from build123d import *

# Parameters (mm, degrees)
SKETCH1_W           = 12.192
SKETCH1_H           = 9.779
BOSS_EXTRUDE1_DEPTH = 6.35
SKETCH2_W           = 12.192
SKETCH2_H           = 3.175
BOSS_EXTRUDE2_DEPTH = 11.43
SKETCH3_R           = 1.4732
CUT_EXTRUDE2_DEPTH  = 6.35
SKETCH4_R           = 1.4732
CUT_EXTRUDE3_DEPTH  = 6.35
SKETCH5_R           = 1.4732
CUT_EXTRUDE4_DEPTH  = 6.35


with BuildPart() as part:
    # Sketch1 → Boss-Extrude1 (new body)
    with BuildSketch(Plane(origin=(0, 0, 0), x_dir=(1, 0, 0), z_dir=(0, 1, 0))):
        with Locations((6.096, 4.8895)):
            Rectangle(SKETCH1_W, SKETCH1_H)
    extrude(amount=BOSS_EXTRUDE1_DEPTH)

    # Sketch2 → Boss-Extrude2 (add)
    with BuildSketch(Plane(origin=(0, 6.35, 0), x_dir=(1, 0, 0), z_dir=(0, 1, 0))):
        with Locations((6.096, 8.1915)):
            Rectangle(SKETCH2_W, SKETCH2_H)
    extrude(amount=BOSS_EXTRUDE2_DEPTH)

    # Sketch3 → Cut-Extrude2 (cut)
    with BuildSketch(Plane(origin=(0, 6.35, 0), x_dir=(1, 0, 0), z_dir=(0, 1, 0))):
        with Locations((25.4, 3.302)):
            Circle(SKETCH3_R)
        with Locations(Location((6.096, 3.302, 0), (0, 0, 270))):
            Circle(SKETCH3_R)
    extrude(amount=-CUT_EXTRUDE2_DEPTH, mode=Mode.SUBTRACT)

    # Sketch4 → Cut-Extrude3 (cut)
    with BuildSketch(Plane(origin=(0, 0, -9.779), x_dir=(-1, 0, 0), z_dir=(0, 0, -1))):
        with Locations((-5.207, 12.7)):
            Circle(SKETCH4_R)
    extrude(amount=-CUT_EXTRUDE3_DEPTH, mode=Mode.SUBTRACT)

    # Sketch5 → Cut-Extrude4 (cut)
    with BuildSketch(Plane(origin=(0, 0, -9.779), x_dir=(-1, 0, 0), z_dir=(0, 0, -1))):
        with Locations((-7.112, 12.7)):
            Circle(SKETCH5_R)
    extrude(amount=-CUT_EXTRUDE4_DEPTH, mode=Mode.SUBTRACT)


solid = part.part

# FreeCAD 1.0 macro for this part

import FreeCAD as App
import Part
import Sketcher

V = App.Vector
Q = App.Units.Quantity


def add_polygon(sketch, points):
    """Adds a closed chain of lines whose ends are joined by coincident constraints."""
    first, n = sketch.GeometryCount, len(points)
    for a, b in zip(points, points[1:] + points[:1]):
        sketch.addGeometry(Part.LineSegment(App.Vector(*a, 0), App.Vector(*b, 0)), False)
    for i in range(n):
        sketch.addConstraint(Sketcher.Constraint("Coincident", first + i, 2, first + (i + 1) % n, 1))

doc = App.newDocument("Part")
body = doc.addObject("PartDesign::Body", "Body")

# Sketch on XZ plane
sketch1 = doc.addObject("Sketcher::SketchObject", "Sketch")
body.addObject(sketch1)
sketch1.AttachmentSupport = (doc.XZ_Plane, [""])
sketch1.MapMode = "FlatFace"
add_polygon(sketch1, [(0, -10), (0, 0), (12, 0), (12, -10)])  # lines 0-3
sketch1.addConstraint([
    Sketcher.Constraint("Vertical", 0),
    Sketcher.Constraint("Horizontal", 1),
    Sketcher.Constraint("Vertical", 2),
    Sketcher.Constraint("Horizontal", 3),
    Sketcher.Constraint("Coincident", 0, 2, -1, 1),
    Sketcher.Constraint("DistanceX", 1, 1, 1, 2, Q("0.48 in")),
    Sketcher.Constraint("DistanceY", 0, 1, 0, 2, Q("0.385 in")),
])
pad1 = doc.addObject("PartDesign::Pad", "Pad")
body.addObject(pad1)
pad1.Profile = sketch1
pad1.Length = Q("0.25 in")
pad1.Reversed = True

# Sketch on XZ plane
sketch2 = doc.addObject("Sketcher::SketchObject", "Sketch001")
body.addObject(sketch2)
sketch2.AttachmentSupport = (doc.XZ_Plane, [""])
sketch2.MapMode = "FlatFace"
sketch2.AttachmentOffset = App.Placement(V(0, 0, -0.25 * 25.4), App.Rotation())
add_polygon(sketch2, [(0, -9.8), (0, -6.6), (12.2, -6.6), (12.2, -9.8)])  # lines 0-3
sketch2.addConstraint([
    Sketcher.Constraint("Vertical", 0),
    Sketcher.Constraint("Horizontal", 1),
    Sketcher.Constraint("Vertical", 2),
    Sketcher.Constraint("Horizontal", 3),
    Sketcher.Constraint("PointOnObject", 0, 2, -2),
    Sketcher.Constraint("DistanceX", 1, 1, 1, 2, Q("0.48 in")),
    Sketcher.Constraint("DistanceY", 0, 1, 0, 2, Q("0.125 in")),
    Sketcher.Constraint("DistanceY", 0, 2, -1, 1, Q("0.26 in")),
])
pad2 = doc.addObject("PartDesign::Pad", "Pad001")
body.addObject(pad2)
pad2.Profile = sketch2
pad2.Length = Q("0.45 in")
pad2.Reversed = True

# Sketch on XZ plane
sketch3 = doc.addObject("Sketcher::SketchObject", "Sketch002")
body.addObject(sketch3)
sketch3.AttachmentSupport = (doc.XZ_Plane, [""])
sketch3.MapMode = "FlatFace"
sketch3.AttachmentOffset = App.Placement(V(0, 0, -0.25 * 25.4), App.Rotation())
sketch3.addGeometry([
    Part.Circle(V(25.4, -3.3, 0), V(0, 0, 1), 1.5),
    Part.Circle(V(6.1, -3.3, 0), V(0, 0, 1), 1.5),
], False)
sketch3.addConstraint([
    Sketcher.Constraint("Equal", 0, 1),
    Sketcher.Constraint("Horizontal", 0, 3, 1, 3),
    Sketcher.Constraint("Diameter", 0, Q("0.116 in")),
    Sketcher.Constraint("DistanceX", -1, 1, 0, 3, Q("1 in")),
    Sketcher.Constraint("DistanceY", 0, 3, -1, 1, Q("0.13 in")),
    Sketcher.Constraint("DistanceX", -1, 1, 1, 3, Q("0.24 in")),
])
pocket1 = doc.addObject("PartDesign::Pocket", "Pocket")
body.addObject(pocket1)
pocket1.Profile = sketch3
pocket1.Length = Q("0.25 in")
pocket1.Reversed = True

# Sketch on XY plane
sketch4 = doc.addObject("Sketcher::SketchObject", "Sketch003")
body.addObject(sketch4)
sketch4.AttachmentSupport = (doc.XY_Plane, [""])
sketch4.MapMode = "FlatFace"
sketch4.AttachmentOffset = App.Placement(V(0, 0, -0.385 * 25.4), App.Rotation())
sketch4.addGeometry(Part.Circle(V(5.2, 12.7, 0), V(0, 0, 1), 1.5), False)
sketch4.addConstraint([
    Sketcher.Constraint("Diameter", 0, Q("0.116 in")),
    Sketcher.Constraint("DistanceY", -1, 1, 0, 3, Q("0.5 in")),
    Sketcher.Constraint("DistanceX", -1, 1, 0, 3, Q("0.205 in")),
])
pocket2 = doc.addObject("PartDesign::Pocket", "Pocket001")
body.addObject(pocket2)
pocket2.Profile = sketch4
pocket2.Length = Q("0.25 in")
pocket2.Reversed = True

# Sketch on XY plane
sketch5 = doc.addObject("Sketcher::SketchObject", "Sketch004")
body.addObject(sketch5)
sketch5.AttachmentSupport = (doc.XY_Plane, [""])
sketch5.MapMode = "FlatFace"
sketch5.AttachmentOffset = App.Placement(V(0, 0, -0.385 * 25.4), App.Rotation())
sketch5.addGeometry(Part.Circle(V(7.1, 12.7, 0), V(0, 0, 1), 1.5), False)
sketch5.addConstraint([
    Sketcher.Constraint("Diameter", 0, Q("0.116 in")),
    Sketcher.Constraint("DistanceY", -1, 1, 0, 3, Q("0.5 in")),
    Sketcher.Constraint("DistanceX", -1, 1, 0, 3, Q("0.28 in")),
])
pocket3 = doc.addObject("PartDesign::Pocket", "Pocket002")
body.addObject(pocket3)
pocket3.Profile = sketch5
pocket3.Length = Q("0.25 in")
pocket3.Reversed = True

doc.recompute()
